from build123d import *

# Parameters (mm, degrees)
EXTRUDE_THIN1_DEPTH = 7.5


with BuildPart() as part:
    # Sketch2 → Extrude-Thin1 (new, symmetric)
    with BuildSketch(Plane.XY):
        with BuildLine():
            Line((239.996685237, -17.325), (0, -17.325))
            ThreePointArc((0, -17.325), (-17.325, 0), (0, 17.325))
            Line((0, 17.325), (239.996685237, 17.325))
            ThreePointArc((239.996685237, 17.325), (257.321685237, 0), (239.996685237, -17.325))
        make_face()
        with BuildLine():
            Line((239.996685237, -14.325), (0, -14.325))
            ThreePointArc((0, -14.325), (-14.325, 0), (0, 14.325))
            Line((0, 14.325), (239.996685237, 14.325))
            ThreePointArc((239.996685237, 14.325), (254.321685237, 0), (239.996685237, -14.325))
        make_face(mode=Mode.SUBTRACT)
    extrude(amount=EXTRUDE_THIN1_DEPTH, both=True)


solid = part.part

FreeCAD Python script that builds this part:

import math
import FreeCAD as App
import Part
import Sketcher
from FreeCAD import Vector

doc = App.newDocument("Part")
body = doc.addObject("PartDesign::Body", "Body")

sketch1 = body.newObject("Sketcher::SketchObject", "Sketch")
sketch1.AttachmentSupport = (doc.getObject("XY_Plane"), [""])
sketch1.MapMode = "FlatFace"
sketch1.addGeometry([
    Part.LineSegment(Vector(0, -17, 0), Vector(240, -17, 0)),
    Part.ArcOfCircle(Part.Circle(Vector(240, 0, 0), Vector(0, 0, 1), 17), math.radians(-90), math.radians(90)),
    Part.LineSegment(Vector(240, 17, 0), Vector(0, 17, 0)),
    Part.ArcOfCircle(Part.Circle(Vector(0, 0, 0), Vector(0, 0, 1), 17), math.radians(90), math.radians(270)),
    Part.LineSegment(Vector(240, -14, 0), Vector(0, -14, 0)),
    Part.ArcOfCircle(Part.Circle(Vector(0, 0, 0), Vector(0, 0, 1), 14), math.radians(90), math.radians(270)),
    Part.LineSegment(Vector(0, 14, 0), Vector(240, 14, 0)),
    Part.ArcOfCircle(Part.Circle(Vector(240, 0, 0), Vector(0, 0, 1), 14), math.radians(-90), math.radians(90)),
], False)
sketch1.addConstraint([
    Sketcher.Constraint("Tangent", 0, 2, 1, 1),
    Sketcher.Constraint("Tangent", 1, 2, 2, 1),
    Sketcher.Constraint("Tangent", 2, 2, 3, 1),
    Sketcher.Constraint("Tangent", 3, 2, 0, 1),
    Sketcher.Constraint("Tangent", 4, 2, 5, 2),
    Sketcher.Constraint("Tangent", 5, 1, 6, 1),
    Sketcher.Constraint("Tangent", 6, 2, 7, 2),
    Sketcher.Constraint("Tangent", 7, 1, 4, 1),
    Sketcher.Constraint("Horizontal", 0),
    Sketcher.Constraint("Horizontal", 2),
    Sketcher.Constraint("Horizontal", 4),
    Sketcher.Constraint("Horizontal", 6),
    Sketcher.Constraint("Coincident", 3, 3, -1, 1),
    Sketcher.Constraint("Coincident", 5, 3, -1, 1),
    Sketcher.Constraint("Vertical", 7, 3, 0, 2),
    Sketcher.Constraint("Radius", 1, 17.325),
    Sketcher.Constraint("Radius", 5, 14.325),
    Sketcher.Constraint("DistanceX", 0, 1, 0, 2, 239.996685),
])
pad1 = body.newObject("PartDesign::Pad", "Pad")
pad1.Profile = sketch1
pad1.Length = 15
pad1.Midplane = True

doc.recompute()
